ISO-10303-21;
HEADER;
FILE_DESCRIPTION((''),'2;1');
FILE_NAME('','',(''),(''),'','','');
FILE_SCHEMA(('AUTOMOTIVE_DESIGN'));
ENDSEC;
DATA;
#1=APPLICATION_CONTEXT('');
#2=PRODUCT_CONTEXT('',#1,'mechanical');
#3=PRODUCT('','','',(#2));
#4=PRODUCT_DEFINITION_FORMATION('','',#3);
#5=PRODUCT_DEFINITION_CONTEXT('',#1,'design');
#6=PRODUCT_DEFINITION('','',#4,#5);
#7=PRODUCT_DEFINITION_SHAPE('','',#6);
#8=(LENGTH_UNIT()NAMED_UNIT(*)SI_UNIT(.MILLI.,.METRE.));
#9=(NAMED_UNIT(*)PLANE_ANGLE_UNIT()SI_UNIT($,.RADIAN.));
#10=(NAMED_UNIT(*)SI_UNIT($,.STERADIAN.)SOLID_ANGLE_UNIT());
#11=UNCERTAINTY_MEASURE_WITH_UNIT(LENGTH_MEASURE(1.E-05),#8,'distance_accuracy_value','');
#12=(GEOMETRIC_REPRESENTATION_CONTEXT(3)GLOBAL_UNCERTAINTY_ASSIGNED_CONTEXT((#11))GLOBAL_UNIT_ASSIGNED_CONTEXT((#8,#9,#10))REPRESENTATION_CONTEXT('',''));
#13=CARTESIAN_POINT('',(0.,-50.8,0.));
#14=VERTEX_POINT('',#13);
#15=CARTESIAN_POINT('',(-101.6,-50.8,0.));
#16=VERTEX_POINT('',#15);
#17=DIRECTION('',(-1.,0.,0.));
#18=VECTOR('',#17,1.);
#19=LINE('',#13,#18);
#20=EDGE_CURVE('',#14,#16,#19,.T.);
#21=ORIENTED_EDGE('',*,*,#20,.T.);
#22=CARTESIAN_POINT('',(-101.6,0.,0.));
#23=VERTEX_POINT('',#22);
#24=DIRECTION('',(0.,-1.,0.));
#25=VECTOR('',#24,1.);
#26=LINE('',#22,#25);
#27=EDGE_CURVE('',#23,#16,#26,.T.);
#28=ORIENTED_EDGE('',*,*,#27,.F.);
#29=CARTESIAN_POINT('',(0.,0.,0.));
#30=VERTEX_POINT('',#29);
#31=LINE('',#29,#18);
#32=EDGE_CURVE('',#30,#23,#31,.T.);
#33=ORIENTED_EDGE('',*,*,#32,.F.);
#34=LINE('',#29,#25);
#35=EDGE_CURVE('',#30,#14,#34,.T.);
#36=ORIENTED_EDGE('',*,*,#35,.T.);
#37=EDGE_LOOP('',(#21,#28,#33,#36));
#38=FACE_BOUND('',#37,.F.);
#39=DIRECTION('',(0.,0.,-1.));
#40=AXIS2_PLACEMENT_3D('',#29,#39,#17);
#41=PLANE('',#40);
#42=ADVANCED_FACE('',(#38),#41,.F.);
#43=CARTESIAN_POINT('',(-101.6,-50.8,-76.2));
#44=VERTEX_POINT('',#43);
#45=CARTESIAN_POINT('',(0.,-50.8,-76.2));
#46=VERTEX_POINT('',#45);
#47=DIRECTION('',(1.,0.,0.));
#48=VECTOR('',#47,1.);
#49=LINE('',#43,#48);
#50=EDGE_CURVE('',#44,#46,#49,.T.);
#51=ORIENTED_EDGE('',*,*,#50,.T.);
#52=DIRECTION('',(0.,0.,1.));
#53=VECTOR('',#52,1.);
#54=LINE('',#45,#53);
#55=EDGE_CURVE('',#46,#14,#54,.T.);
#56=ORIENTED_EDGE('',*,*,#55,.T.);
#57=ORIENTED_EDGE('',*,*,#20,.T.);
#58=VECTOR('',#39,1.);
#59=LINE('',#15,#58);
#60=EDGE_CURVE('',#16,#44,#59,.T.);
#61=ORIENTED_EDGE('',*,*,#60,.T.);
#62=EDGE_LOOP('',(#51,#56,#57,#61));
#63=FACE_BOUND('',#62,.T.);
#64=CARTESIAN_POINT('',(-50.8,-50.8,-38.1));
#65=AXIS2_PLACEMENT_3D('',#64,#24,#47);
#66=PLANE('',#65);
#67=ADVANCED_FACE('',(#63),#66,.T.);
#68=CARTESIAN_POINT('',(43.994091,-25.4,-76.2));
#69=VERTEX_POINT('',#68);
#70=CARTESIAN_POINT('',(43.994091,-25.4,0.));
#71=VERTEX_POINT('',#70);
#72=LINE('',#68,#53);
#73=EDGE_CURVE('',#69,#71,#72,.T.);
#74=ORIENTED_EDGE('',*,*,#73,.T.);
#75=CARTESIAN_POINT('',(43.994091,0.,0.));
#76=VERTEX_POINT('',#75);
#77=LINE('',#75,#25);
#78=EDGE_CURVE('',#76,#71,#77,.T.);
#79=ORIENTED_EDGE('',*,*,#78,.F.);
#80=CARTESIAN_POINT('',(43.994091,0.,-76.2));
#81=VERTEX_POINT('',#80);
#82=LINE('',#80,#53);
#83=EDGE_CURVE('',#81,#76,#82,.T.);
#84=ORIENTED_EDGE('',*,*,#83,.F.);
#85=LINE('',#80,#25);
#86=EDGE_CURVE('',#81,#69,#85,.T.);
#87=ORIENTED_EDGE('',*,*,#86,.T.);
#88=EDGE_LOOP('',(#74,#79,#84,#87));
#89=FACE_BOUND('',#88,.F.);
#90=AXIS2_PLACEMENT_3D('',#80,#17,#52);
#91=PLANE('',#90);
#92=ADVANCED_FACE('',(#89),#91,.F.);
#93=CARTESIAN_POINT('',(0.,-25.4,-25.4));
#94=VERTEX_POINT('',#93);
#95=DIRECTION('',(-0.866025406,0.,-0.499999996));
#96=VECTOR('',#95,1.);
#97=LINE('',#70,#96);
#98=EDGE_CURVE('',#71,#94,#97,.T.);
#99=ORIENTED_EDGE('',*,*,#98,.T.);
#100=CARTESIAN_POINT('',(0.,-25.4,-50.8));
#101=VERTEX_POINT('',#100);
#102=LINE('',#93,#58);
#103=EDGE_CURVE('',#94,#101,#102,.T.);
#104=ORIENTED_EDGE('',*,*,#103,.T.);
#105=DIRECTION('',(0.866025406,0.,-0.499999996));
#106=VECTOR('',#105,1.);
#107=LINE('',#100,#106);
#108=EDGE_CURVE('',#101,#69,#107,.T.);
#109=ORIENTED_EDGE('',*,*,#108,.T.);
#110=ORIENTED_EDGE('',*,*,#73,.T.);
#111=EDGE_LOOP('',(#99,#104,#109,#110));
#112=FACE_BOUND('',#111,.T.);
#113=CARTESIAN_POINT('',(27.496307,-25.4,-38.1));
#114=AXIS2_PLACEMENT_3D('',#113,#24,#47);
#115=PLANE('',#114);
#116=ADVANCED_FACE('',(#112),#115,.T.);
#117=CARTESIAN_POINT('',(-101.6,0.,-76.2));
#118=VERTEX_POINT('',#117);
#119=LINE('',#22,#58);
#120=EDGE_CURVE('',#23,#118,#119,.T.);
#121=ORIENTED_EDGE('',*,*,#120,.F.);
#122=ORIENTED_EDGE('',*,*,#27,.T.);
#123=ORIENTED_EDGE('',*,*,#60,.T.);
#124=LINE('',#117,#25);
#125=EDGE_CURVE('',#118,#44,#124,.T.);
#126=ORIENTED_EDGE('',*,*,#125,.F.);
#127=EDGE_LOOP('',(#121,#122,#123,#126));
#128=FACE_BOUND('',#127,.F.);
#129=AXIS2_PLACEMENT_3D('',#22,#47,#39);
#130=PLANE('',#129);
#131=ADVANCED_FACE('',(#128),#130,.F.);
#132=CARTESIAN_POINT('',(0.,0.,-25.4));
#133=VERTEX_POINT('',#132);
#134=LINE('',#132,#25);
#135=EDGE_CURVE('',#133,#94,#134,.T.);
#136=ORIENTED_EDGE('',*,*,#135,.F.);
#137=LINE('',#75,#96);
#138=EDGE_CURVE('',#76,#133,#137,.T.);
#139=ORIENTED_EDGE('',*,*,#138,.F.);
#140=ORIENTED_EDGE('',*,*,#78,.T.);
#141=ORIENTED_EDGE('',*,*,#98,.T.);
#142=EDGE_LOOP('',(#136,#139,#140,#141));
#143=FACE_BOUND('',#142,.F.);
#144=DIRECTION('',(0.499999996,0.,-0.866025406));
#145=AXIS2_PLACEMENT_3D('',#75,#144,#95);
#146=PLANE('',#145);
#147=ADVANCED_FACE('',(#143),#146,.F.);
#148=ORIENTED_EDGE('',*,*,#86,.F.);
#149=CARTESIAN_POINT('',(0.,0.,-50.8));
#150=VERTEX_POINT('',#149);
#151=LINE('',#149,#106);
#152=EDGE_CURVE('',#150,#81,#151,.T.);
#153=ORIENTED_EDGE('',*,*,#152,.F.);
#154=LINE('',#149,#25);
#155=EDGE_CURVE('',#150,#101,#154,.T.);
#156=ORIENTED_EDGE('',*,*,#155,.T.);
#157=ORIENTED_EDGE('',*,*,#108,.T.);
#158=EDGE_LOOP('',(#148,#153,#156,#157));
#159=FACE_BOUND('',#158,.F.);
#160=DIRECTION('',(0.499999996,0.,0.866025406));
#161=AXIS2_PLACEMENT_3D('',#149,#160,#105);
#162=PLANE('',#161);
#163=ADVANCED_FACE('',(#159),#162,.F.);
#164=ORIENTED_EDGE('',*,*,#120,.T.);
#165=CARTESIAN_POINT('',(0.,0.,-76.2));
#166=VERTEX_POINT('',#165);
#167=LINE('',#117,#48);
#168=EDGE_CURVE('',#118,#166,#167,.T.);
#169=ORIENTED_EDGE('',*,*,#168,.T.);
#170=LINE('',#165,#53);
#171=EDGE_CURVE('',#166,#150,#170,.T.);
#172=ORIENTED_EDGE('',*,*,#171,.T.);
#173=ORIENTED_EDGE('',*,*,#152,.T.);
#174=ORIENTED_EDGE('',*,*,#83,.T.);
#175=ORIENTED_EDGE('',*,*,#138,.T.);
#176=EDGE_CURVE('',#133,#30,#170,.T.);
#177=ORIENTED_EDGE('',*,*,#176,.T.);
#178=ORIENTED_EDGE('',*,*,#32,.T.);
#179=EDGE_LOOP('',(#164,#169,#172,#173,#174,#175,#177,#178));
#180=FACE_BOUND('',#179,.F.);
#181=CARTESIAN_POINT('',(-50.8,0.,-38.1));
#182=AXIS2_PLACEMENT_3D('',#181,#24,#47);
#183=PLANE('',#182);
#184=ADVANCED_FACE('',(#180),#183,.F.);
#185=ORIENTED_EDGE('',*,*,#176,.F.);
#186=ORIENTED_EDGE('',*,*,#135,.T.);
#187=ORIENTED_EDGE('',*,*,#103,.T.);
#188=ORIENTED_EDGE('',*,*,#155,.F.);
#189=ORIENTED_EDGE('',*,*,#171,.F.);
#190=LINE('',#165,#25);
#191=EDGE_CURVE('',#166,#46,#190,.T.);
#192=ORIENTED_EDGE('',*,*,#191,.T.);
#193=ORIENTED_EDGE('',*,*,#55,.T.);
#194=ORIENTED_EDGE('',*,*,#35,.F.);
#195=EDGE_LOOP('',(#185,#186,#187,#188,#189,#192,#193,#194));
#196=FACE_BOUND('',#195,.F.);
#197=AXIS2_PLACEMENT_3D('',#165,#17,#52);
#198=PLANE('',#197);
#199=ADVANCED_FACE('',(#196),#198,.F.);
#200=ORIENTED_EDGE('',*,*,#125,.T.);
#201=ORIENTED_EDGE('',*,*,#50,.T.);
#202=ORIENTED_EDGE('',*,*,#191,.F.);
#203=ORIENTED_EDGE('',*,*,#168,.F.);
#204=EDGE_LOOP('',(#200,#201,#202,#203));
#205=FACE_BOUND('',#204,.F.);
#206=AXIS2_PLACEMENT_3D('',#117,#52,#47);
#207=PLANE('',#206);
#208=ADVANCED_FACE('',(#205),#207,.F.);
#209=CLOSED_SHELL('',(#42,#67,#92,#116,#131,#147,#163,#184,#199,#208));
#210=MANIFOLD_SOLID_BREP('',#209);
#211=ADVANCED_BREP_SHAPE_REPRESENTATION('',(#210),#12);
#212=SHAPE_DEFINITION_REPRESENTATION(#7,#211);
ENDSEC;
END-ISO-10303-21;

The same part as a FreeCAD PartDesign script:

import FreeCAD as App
import Part
import Sketcher
from FreeCAD import Vector
Q = App.Units.Quantity

doc = App.newDocument("Part")
params = doc.addObject("Spreadsheet::Sheet", "Params")
for row, (alias, value) in enumerate([
    ("sketch1_width", "4 in"),
    ("sketch1_height", "3 in"),
    ("pad1_length", "2 in"),
    ("sketch2_height", "1 in"),
    ("sketch2_height2", "3 in"),
    ("sketch2_length", "2 in"),
    ("pad2_length", "1 in"),
], start=1):
    params.set(f"A{row}", alias)
    params.set(f"B{row}", "=" + value)
    params.setAlias(f"B{row}", alias)

body = doc.addObject("PartDesign::Body", "Body")

# Sketch on XZ plane
sketch1 = body.newObject("Sketcher::SketchObject", "Sketch")
sketch1.AttachmentSupport = (doc.getObject("XZ_Plane"), [""])
sketch1.MapMode = "FlatFace"
sketch1.addGeometry([
    Part.LineSegment(Vector(0, 0, 0), Vector(-102, 0, 0)),
    Part.LineSegment(Vector(-102, 0, 0), Vector(-102, -76, 0)),
    Part.LineSegment(Vector(-102, -76, 0), Vector(0, -76, 0)),
    Part.LineSegment(Vector(0, -76, 0), Vector(0, 0, 0)),
], False)
sketch1.addConstraint([
    Sketcher.Constraint("Coincident", 0, 2, 1, 1),
    Sketcher.Constraint("Coincident", 1, 2, 2, 1),
    Sketcher.Constraint("Coincident", 2, 2, 3, 1),
    Sketcher.Constraint("Coincident", 3, 2, 0, 1),
    Sketcher.Constraint("Horizontal", 0),
    Sketcher.Constraint("Vertical", 1),
    Sketcher.Constraint("Horizontal", 2),
    Sketcher.Constraint("Vertical", 3),
    Sketcher.Constraint("Coincident", 3, 2, -1, 1),
    Sketcher.Constraint("DistanceX", 0, 2, 0, 1, Q("4 in")),
    Sketcher.Constraint("DistanceY", 1, 2, 1, 1, Q("3 in")),
])
sketch1.setExpression("Constraints[9]", "Params.sketch1_width")
sketch1.setExpression("Constraints[10]", "Params.sketch1_height")
pad1 = body.newObject("PartDesign::Pad", "Pad")
pad1.Profile = sketch1
pad1.setExpression("Length", "Params.pad1_length")

# Sketch on XZ plane
sketch2 = body.newObject("Sketcher::SketchObject", "Sketch001")
sketch2.AttachmentSupport = (doc.getObject("XZ_Plane"), [""])
sketch2.MapMode = "FlatFace"
sketch2.addGeometry([
    Part.LineSegment(Vector(44, 0, 0), Vector(0, -25, 0)),
    Part.LineSegment(Vector(0, -25, 0), Vector(0, -51, 0)),
    Part.LineSegment(Vector(0, -51, 0), Vector(44, -76, 0)),
    Part.LineSegment(Vector(44, -76, 0), Vector(44, 0, 0)),
], False)
sketch2.addConstraint([
    Sketcher.Constraint("Coincident", 0, 2, 1, 1),
    Sketcher.Constraint("Coincident", 1, 2, 2, 1),
    Sketcher.Constraint("Coincident", 2, 2, 3, 1),
    Sketcher.Constraint("Coincident", 3, 2, 0, 1),
    Sketcher.Constraint("Vertical", 1),
    Sketcher.Constraint("Vertical", 3),
    Sketcher.Constraint("PointOnObject", 0, 2, -2),
    Sketcher.Constraint("PointOnObject", 3, 2, -1),
    Sketcher.Constraint("Equal", 0, 2),
    Sketcher.Constraint("DistanceY", 1, 2, 1, 1, Q("1 in")),
    Sketcher.Constraint("DistanceY", 3, 1, 3, 2, Q("3 in")),
    Sketcher.Constraint("Distance", 0, Q("2 in")),
])
sketch2.setExpression("Constraints[9]", "Params.sketch2_height")
sketch2.setExpression("Constraints[10]", "Params.sketch2_height2")
sketch2.setExpression("Constraints[11]", "Params.sketch2_length")
pad2 = body.newObject("PartDesign::Pad", "Pad001")
pad2.Profile = sketch2
pad2.setExpression("Length", "Params.pad2_length")

doc.recompute()
